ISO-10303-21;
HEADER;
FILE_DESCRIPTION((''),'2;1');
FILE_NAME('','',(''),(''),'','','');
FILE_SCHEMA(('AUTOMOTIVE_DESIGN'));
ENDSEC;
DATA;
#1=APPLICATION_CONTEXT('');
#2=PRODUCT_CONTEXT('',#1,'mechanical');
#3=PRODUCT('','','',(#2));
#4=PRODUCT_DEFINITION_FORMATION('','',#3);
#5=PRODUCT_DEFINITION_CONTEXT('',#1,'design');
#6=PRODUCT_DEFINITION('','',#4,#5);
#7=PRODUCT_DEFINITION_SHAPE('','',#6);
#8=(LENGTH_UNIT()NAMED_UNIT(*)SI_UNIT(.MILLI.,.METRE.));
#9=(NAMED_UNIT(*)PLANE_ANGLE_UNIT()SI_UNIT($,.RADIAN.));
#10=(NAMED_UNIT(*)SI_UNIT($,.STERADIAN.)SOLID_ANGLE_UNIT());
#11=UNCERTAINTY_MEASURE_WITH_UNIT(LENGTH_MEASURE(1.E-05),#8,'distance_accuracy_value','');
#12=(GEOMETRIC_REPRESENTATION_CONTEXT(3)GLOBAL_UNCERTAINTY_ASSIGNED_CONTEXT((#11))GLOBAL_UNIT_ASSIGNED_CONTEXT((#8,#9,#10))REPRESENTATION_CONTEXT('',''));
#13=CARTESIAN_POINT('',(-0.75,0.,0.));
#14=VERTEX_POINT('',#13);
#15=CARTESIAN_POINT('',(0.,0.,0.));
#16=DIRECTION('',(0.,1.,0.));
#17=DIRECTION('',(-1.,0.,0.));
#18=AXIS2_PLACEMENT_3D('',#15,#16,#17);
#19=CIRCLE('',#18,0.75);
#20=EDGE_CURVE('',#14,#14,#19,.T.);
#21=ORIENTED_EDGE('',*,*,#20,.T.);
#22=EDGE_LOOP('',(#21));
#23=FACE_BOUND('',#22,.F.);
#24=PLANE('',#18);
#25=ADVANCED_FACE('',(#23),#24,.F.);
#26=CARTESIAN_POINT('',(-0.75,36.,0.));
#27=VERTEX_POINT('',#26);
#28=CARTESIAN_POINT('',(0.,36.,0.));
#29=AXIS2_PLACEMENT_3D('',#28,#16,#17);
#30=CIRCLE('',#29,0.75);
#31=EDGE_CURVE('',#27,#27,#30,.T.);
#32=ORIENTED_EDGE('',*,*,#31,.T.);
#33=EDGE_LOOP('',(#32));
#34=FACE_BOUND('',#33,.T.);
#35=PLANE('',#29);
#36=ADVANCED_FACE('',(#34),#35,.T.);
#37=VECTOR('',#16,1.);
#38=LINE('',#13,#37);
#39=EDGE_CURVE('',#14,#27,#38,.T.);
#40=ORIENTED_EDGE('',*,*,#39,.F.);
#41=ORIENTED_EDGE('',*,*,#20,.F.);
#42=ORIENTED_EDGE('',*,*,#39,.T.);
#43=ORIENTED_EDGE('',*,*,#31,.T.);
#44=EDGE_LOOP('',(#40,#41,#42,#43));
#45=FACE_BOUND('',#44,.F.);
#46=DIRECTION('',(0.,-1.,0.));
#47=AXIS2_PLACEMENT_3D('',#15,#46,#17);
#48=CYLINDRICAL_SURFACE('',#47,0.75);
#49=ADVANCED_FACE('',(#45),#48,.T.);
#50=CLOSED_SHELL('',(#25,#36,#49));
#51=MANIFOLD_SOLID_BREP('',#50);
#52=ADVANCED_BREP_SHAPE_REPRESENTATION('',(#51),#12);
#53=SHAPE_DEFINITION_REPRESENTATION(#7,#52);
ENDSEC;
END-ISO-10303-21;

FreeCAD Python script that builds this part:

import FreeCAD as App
import Part
import Sketcher

V = App.Vector

doc = App.newDocument("Part")
params = doc.addObject("Spreadsheet::Sheet", "Params")
for row, (alias, value) in enumerate([
    ("sketch1_diameter", "1.5 mm"),
    ("pad1_length", "36 mm"),
], start=1):
    params.set(f"A{row}", alias)
    params.set(f"B{row}", "=" + value)
    params.setAlias(f"B{row}", alias)

body = doc.addObject("PartDesign::Body", "Body")

# Sketch on XZ plane
sketch1 = doc.addObject("Sketcher::SketchObject", "Sketch")
body.addObject(sketch1)
sketch1.AttachmentSupport = (doc.XZ_Plane, [""])
sketch1.MapMode = "FlatFace"
sketch1.addGeometry(Part.Circle(V(0, 0, 0), V(0, 0, 1), 0.8), False)
sketch1.addConstraint(Sketcher.Constraint("Coincident", 0, 3, -1, 1))
sketch1.addConstraint(Sketcher.Constraint("Diameter", 0, 1.5))
sketch1.setExpression("Constraints[1]", "Params.sketch1_diameter")
pad1 = doc.addObject("PartDesign::Pad", "Pad")
body.addObject(pad1)
pad1.Profile = sketch1
pad1.setExpression("Length", "Params.pad1_length")
pad1.Reversed = True

doc.recompute()
